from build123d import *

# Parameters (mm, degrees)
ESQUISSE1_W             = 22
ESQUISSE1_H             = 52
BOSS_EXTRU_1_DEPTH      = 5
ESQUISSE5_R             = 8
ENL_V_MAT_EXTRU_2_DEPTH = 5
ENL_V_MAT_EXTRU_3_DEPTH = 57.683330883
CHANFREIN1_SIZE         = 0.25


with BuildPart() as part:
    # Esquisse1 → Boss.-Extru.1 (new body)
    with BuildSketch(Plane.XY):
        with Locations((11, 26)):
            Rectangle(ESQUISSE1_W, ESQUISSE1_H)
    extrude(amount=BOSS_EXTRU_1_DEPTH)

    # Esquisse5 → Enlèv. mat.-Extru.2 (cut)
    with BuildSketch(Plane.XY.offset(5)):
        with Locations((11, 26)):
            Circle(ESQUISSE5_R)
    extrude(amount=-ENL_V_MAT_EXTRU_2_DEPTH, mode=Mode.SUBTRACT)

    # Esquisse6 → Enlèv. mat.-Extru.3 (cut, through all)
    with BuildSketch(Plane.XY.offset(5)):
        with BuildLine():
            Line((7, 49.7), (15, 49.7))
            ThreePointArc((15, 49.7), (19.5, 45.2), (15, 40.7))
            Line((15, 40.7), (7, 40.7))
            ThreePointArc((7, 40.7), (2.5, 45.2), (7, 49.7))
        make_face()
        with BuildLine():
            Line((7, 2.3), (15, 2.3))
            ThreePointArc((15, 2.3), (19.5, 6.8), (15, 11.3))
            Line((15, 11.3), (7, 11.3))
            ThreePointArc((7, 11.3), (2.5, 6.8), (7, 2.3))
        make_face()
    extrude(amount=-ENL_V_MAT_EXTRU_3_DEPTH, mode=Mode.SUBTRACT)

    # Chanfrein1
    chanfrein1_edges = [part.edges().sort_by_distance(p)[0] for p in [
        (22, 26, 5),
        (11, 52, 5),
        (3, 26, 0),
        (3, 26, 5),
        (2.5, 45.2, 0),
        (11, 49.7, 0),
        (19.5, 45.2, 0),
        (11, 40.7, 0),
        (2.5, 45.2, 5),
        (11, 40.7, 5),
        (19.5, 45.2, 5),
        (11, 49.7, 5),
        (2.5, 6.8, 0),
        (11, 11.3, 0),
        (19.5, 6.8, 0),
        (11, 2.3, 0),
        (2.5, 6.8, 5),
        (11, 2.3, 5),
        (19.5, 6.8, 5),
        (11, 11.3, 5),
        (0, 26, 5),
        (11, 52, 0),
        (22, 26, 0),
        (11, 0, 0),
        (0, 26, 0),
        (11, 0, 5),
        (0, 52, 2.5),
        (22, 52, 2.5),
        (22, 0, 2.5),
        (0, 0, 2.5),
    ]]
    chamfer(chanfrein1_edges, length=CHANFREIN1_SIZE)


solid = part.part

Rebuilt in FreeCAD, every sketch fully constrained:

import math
import FreeCAD as App
import Part
import Sketcher
from FreeCAD import Vector


def add_polygon(sketch, points):
    """Adds a closed chain of lines whose ends are joined by coincident constraints."""
    first, n = sketch.GeometryCount, len(points)
    for a, b in zip(points, points[1:] + points[:1]):
        sketch.addGeometry(Part.LineSegment(App.Vector(*a, 0), App.Vector(*b, 0)), False)
    for i in range(n):
        sketch.addConstraint(Sketcher.Constraint("Coincident", first + i, 2, first + (i + 1) % n, 1))

doc = App.newDocument("Part")
body = doc.addObject("PartDesign::Body", "Body")

sketch1 = doc.addObject("Sketcher::SketchObject", "Sketch")
body.addObject(sketch1)
sketch1.AttachmentSupport = (doc.XY_Plane, [""])
sketch1.MapMode = "FlatFace"
add_polygon(sketch1, [(0, 52), (0, 0), (22, 0), (22, 52)])
sketch1.addConstraint(Sketcher.Constraint("Vertical", 0))
sketch1.addConstraint(Sketcher.Constraint("Horizontal", 1))
sketch1.addConstraint(Sketcher.Constraint("Vertical", 2))
sketch1.addConstraint(Sketcher.Constraint("Horizontal", 3))
sketch1.addConstraint(Sketcher.Constraint("Coincident", 0, 2, -1, 1))
sketch1.addConstraint(Sketcher.Constraint("DistanceX", 1, 1, 1, 2, 22.0))
sketch1.addConstraint(Sketcher.Constraint("DistanceY", 0, 2, 0, 1, 52.0))
pad1 = doc.addObject("PartDesign::Pad", "Pad")
body.addObject(pad1)
pad1.Profile = sketch1
pad1.Length = 5

sketch2 = doc.addObject("Sketcher::SketchObject", "Sketch001")
body.addObject(sketch2)
sketch2.AttachmentSupport = (doc.XY_Plane, [""])
sketch2.MapMode = "FlatFace"
sketch2.AttachmentOffset = App.Placement(Vector(0, 0, 5), App.Rotation())
sketch2.addGeometry(Part.Circle(Vector(11, 26, 0), Vector(0, 0, 1), 8), False)
sketch2.addConstraint(Sketcher.Constraint("Diameter", 0, 16.0))
sketch2.addConstraint(Sketcher.Constraint("DistanceX", -1, 1, 0, 3, 11.0))
sketch2.addConstraint(Sketcher.Constraint("DistanceY", -1, 1, 0, 3, 26.0))
pocket1 = doc.addObject("PartDesign::Pocket", "Pocket")
body.addObject(pocket1)
pocket1.Profile = sketch2
pocket1.Length = 5

sketch3 = doc.addObject("Sketcher::SketchObject", "Sketch002")
body.addObject(sketch3)
sketch3.AttachmentSupport = (doc.XY_Plane, [""])
sketch3.MapMode = "FlatFace"
sketch3.AttachmentOffset = App.Placement(Vector(0, 0, 5), App.Rotation())
sketch3.addGeometry(Part.LineSegment(Vector(15, 49.7, 0), Vector(7, 49.7, 0)), False)
sketch3.addGeometry(Part.ArcOfCircle(Part.Circle(Vector(7, 45.2, 0), Vector(0, 0, 1), 4.5), math.radians(90), math.radians(270)), False)
sketch3.addGeometry(Part.LineSegment(Vector(7, 40.7, 0), Vector(15, 40.7, 0)), False)
sketch3.addGeometry(Part.ArcOfCircle(Part.Circle(Vector(15, 45.2, 0), Vector(0, 0, 1), 4.5), math.radians(-90), math.radians(90)), False)
sketch3.addGeometry(Part.LineSegment(Vector(7, 2.3, 0), Vector(15, 2.3, 0)), False)
sketch3.addGeometry(Part.ArcOfCircle(Part.Circle(Vector(15, 6.8, 0), Vector(0, 0, 1), 4.5), math.radians(-90), math.radians(90)), False)
sketch3.addGeometry(Part.LineSegment(Vector(15, 11.3, 0), Vector(7, 11.3, 0)), False)
sketch3.addGeometry(Part.ArcOfCircle(Part.Circle(Vector(7, 6.8, 0), Vector(0, 0, 1), 4.5), math.radians(90), math.radians(270)), False)
sketch3.addConstraint(Sketcher.Constraint("Tangent", 0, 2, 1, 1))
sketch3.addConstraint(Sketcher.Constraint("Tangent", 1, 2, 2, 1))
sketch3.addConstraint(Sketcher.Constraint("Tangent", 2, 2, 3, 1))
sketch3.addConstraint(Sketcher.Constraint("Tangent", 3, 2, 0, 1))
sketch3.addConstraint(Sketcher.Constraint("Tangent", 4, 2, 5, 1))
sketch3.addConstraint(Sketcher.Constraint("Tangent", 5, 2, 6, 1))
sketch3.addConstraint(Sketcher.Constraint("Tangent", 6, 2, 7, 1))
sketch3.addConstraint(Sketcher.Constraint("Tangent", 7, 2, 4, 1))
sketch3.addConstraint(Sketcher.Constraint("Horizontal", 0))
sketch3.addConstraint(Sketcher.Constraint("Horizontal", 2))
sketch3.addConstraint(Sketcher.Constraint("Horizontal", 4))
sketch3.addConstraint(Sketcher.Constraint("Horizontal", 6))
sketch3.addConstraint(Sketcher.Constraint("Equal", 3, 5))
sketch3.addConstraint(Sketcher.Constraint("Vertical", 3, 3, 5, 3))
sketch3.addConstraint(Sketcher.Constraint("Vertical", 1, 3, 7, 3))
sketch3.addConstraint(Sketcher.Constraint("Radius", 1, 4.5))
sketch3.addConstraint(Sketcher.Constraint("DistanceX", 0, 2, 0, 1, 8.0))
sketch3.addConstraint(Sketcher.Constraint("DistanceX", -1, 1, 1, 3, 7.0))
sketch3.addConstraint(Sketcher.Constraint("DistanceY", -1, 1, 1, 3, 45.2))
sketch3.addConstraint(Sketcher.Constraint("DistanceY", -1, 1, 5, 3, 6.8))
pocket2 = doc.addObject("PartDesign::Pocket", "Pocket001")
body.addObject(pocket2)
pocket2.Profile = sketch3
pocket2.Type = "ThroughAll"
doc.recompute()

chamfer = doc.addObject("PartDesign::Chamfer", "Chamfer")
body.addObject(chamfer)
chamfer.Base = (pocket2, ["Edge1"])
chamfer.UseAllEdges = True
chamfer.Size = 0.25

doc.recompute()
